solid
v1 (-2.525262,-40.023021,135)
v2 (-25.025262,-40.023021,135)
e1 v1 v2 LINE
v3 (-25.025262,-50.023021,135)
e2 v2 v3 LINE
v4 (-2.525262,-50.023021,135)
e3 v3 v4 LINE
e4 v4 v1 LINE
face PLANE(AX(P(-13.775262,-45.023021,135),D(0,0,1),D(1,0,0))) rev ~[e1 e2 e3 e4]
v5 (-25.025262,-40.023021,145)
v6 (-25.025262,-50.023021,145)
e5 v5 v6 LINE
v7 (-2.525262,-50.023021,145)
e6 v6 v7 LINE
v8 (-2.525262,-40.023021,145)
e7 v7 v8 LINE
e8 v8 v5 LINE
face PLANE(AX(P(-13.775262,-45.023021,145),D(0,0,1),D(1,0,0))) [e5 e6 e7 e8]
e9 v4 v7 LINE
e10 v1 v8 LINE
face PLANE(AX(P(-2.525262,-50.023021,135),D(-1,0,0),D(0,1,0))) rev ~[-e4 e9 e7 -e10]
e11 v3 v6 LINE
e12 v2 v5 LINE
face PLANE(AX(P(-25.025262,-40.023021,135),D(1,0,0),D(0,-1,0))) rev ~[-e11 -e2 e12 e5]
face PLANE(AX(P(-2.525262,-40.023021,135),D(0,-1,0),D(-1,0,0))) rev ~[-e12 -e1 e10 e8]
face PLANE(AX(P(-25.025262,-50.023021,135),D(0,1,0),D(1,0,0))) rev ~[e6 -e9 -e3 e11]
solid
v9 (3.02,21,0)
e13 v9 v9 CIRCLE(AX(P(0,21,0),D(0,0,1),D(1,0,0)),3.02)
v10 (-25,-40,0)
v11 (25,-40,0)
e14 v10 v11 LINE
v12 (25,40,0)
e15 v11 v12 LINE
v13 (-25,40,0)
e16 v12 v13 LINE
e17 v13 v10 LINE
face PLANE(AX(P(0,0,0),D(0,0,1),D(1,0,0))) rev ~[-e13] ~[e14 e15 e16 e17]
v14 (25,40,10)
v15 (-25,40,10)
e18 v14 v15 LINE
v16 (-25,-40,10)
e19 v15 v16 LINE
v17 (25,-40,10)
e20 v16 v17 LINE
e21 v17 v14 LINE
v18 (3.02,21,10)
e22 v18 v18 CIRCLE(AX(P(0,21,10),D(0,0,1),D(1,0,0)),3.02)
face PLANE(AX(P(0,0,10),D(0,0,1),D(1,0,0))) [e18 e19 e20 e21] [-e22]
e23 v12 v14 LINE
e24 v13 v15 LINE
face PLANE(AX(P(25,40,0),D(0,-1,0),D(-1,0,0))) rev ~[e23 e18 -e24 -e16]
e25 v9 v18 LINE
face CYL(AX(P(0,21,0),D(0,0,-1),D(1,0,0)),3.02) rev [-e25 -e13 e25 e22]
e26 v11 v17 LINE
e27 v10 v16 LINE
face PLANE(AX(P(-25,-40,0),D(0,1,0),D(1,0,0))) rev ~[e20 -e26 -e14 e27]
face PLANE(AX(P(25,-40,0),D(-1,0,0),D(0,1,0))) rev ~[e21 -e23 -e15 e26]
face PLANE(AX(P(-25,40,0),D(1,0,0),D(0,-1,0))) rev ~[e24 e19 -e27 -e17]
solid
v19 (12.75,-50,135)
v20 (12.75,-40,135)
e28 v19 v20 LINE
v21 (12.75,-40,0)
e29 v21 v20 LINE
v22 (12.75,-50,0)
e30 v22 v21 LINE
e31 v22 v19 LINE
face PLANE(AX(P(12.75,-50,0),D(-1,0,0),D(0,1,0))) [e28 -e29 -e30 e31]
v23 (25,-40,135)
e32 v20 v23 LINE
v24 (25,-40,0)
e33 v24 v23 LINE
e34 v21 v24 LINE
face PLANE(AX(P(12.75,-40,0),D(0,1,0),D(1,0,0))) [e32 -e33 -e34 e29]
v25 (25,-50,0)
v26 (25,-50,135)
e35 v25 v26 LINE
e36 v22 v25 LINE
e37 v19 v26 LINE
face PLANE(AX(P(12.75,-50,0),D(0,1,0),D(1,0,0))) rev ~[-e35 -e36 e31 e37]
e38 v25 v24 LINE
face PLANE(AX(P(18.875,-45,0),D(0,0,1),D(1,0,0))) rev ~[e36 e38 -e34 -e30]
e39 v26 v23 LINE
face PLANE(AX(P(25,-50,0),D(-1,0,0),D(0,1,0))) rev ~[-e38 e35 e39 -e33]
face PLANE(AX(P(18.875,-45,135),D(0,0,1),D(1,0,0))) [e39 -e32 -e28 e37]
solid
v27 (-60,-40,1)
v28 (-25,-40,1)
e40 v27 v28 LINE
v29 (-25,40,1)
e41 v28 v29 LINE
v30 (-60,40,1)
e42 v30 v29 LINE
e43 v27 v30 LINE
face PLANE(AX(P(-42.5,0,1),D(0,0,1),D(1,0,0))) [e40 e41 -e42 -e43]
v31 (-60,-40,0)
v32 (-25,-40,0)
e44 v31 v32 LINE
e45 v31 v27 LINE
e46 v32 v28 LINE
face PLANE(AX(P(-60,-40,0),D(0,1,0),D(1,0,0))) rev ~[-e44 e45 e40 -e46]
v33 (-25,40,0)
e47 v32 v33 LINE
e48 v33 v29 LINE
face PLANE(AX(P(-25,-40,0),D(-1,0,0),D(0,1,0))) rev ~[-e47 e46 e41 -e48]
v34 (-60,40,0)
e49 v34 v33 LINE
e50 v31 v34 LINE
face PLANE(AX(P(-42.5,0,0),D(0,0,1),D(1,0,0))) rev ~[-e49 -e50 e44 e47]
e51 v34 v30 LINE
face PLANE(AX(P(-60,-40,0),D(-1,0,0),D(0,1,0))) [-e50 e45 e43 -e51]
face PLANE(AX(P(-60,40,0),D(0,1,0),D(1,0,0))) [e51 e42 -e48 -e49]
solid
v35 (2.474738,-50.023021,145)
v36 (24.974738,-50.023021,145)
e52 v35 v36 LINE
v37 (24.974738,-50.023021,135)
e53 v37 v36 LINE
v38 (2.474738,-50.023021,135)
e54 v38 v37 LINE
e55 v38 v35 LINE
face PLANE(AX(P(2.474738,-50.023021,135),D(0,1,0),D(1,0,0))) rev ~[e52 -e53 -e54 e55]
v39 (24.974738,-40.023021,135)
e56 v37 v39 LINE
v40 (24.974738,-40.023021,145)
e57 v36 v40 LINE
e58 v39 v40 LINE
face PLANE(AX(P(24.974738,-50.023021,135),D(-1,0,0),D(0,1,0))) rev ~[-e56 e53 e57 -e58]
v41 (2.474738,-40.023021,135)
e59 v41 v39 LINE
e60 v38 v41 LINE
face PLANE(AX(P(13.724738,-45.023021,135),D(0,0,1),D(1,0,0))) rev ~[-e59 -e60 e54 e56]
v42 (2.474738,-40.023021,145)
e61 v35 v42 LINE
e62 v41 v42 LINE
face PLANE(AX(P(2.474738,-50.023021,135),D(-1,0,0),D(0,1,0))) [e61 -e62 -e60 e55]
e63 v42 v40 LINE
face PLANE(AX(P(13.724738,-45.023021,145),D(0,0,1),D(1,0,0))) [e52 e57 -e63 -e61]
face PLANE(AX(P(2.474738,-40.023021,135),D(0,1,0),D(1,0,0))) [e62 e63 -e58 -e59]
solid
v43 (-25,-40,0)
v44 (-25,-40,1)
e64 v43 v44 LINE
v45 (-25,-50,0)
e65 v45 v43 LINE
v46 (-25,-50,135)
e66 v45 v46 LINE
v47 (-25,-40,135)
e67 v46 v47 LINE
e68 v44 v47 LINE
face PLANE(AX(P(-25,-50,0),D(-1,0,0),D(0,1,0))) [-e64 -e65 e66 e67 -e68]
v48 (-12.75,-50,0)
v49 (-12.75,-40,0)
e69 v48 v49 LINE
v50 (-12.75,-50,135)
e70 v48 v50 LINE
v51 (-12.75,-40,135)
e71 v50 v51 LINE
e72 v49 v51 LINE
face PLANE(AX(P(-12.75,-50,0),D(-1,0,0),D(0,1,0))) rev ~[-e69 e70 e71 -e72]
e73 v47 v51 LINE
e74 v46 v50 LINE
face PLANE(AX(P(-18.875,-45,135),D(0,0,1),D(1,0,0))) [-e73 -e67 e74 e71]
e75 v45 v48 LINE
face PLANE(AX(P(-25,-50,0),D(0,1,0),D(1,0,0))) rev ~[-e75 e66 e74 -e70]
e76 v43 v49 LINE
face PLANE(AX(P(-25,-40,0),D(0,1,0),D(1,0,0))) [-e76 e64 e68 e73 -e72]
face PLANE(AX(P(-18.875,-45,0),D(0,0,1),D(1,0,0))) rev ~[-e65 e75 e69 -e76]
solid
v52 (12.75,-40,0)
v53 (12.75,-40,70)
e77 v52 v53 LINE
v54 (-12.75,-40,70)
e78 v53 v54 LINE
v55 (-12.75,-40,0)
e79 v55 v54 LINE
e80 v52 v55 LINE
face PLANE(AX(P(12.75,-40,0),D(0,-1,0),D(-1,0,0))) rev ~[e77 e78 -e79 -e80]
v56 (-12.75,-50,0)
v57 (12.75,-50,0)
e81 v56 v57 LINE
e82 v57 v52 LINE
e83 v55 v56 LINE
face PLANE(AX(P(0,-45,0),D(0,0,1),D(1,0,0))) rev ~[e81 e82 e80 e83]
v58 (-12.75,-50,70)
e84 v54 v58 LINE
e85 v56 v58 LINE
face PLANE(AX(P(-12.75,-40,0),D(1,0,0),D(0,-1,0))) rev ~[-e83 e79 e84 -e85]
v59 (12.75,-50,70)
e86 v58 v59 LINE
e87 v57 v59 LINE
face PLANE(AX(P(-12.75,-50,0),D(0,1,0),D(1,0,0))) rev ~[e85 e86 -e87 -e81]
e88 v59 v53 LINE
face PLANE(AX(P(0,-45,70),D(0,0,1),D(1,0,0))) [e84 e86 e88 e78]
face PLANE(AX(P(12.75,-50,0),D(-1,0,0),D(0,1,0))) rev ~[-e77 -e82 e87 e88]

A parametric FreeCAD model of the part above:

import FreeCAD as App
import Part
import Sketcher
from FreeCAD import Vector
Q = App.Units.Quantity


def add_polygon(sketch, points):
    """Adds a closed chain of lines whose ends are joined by coincident constraints."""
    first, n = sketch.GeometryCount, len(points)
    for a, b in zip(points, points[1:] + points[:1]):
        sketch.addGeometry(Part.LineSegment(App.Vector(*a, 0), App.Vector(*b, 0)), False)
    for i in range(n):
        sketch.addConstraint(Sketcher.Constraint("Coincident", first + i, 2, first + (i + 1) % n, 1))

doc = App.newDocument("Part")
body = doc.addObject("PartDesign::Body", "Body")
body.AllowCompound = True

sketch1 = body.newObject("Sketcher::SketchObject", "Sketch")
sketch1.AttachmentSupport = (doc.getObject("XY_Plane"), [""])
sketch1.MapMode = "FlatFace"
add_polygon(sketch1, [(-60, 40), (-60, -40), (-25, -40), (-25, 40)])
sketch1.addConstraint(Sketcher.Constraint("Vertical", 0))
sketch1.addConstraint(Sketcher.Constraint("Horizontal", 1))
sketch1.addConstraint(Sketcher.Constraint("Vertical", 2))
sketch1.addConstraint(Sketcher.Constraint("Horizontal", 3))
sketch1.addConstraint(Sketcher.Constraint("DistanceX", 1, 1, 1, 2, Q("35 mm")))
sketch1.addConstraint(Sketcher.Constraint("DistanceY", 0, 2, 0, 1, Q("80 mm")))
sketch1.addConstraint(Sketcher.Constraint("DistanceX", 0, 2, -1, 1, Q("60 mm")))
sketch1.addConstraint(Sketcher.Constraint("DistanceY", 0, 2, -1, 1, Q("40 mm")))
pad1 = body.newObject("PartDesign::Pad", "Pad")
pad1.Profile = sketch1
pad1.Length = 1

sketch2 = body.newObject("Sketcher::SketchObject", "Sketch001")
sketch2.AttachmentSupport = (doc.getObject("XY_Plane"), [""])
sketch2.MapMode = "FlatFace"
add_polygon(sketch2, [(-25, -40), (-25, -50), (-12.75, -50), (-12.75, -40)])
sketch2.addConstraint(Sketcher.Constraint("Vertical", 0))
sketch2.addConstraint(Sketcher.Constraint("Horizontal", 1))
sketch2.addConstraint(Sketcher.Constraint("Vertical", 2))
sketch2.addConstraint(Sketcher.Constraint("Horizontal", 3))
sketch2.addConstraint(Sketcher.Constraint("DistanceY", 0, 2, 0, 1, Q("10 mm")))
sketch2.addConstraint(Sketcher.Constraint("DistanceX", 0, 2, -1, 1, Q("25 mm")))
sketch2.addConstraint(Sketcher.Constraint("DistanceY", 0, 2, -1, 1, Q("50 mm")))
sketch2.addConstraint(Sketcher.Constraint("DistanceX", 1, 1, 1, 2, Q("12.25 mm")))
pad2 = body.newObject("PartDesign::Pad", "Pad001")
pad2.Profile = sketch2
pad2.Length = 135
body2 = doc.addObject("PartDesign::Body", "Body001")

sketch3 = body2.newObject("Sketcher::SketchObject", "Sketch002")
sketch3.AttachmentSupport = (doc.getObject("XY_Plane001"), [""])
sketch3.MapMode = "FlatFace"
add_polygon(sketch3, [(12.75, -40), (12.75, -50), (25, -50), (25, -40)])
sketch3.addConstraint(Sketcher.Constraint("Vertical", 0))
sketch3.addConstraint(Sketcher.Constraint("Horizontal", 1))
sketch3.addConstraint(Sketcher.Constraint("Vertical", 2))
sketch3.addConstraint(Sketcher.Constraint("Horizontal", 3))
sketch3.addConstraint(Sketcher.Constraint("DistanceY", 0, 2, 0, 1, Q("10 mm")))
sketch3.addConstraint(Sketcher.Constraint("DistanceY", 0, 2, -1, 1, Q("50 mm")))
sketch3.addConstraint(Sketcher.Constraint("DistanceX", -1, 1, 1, 2, Q("25 mm")))
sketch3.addConstraint(Sketcher.Constraint("DistanceX", 1, 1, 1, 2, Q("12.25 mm")))
pad3 = body2.newObject("PartDesign::Pad", "Pad002")
pad3.Profile = sketch3
pad3.Length = 135
body3 = doc.addObject("PartDesign::Body", "Body002")

sketch4 = body3.newObject("Sketcher::SketchObject", "Sketch003")
sketch4.AttachmentSupport = (doc.getObject("XY_Plane002"), [""])
sketch4.MapMode = "FlatFace"
sketch4.AttachmentOffset = App.Placement(Vector(0, 0, 135), App.Rotation())
add_polygon(sketch4, [(-2.525262, -40.023021), (-25.025262, -40.023021), (-25.025262, -50.023021), (-2.525262, -50.023021)])
sketch4.addConstraint(Sketcher.Constraint("Horizontal", 0))
sketch4.addConstraint(Sketcher.Constraint("Vertical", 1))
sketch4.addConstraint(Sketcher.Constraint("Horizontal", 2))
sketch4.addConstraint(Sketcher.Constraint("Vertical", 3))
sketch4.addConstraint(Sketcher.Constraint("DistanceY", 1, 2, 1, 1, Q("10 mm")))
sketch4.addConstraint(Sketcher.Constraint("DistanceX", 0, 2, 0, 1, Q("22.5 mm")))
sketch4.addConstraint(Sketcher.Constraint("DistanceX", 0, 2, -1, 1, Q("25.025262 mm")))
sketch4.addConstraint(Sketcher.Constraint("DistanceY", 0, 2, -1, 1, Q("40.023021 mm")))
pad4 = body3.newObject("PartDesign::Pad", "Pad003")
pad4.Profile = sketch4
pad4.Length = 10
body4 = doc.addObject("PartDesign::Body", "Body003")

sketch5 = body4.newObject("Sketcher::SketchObject", "Sketch004")
sketch5.AttachmentSupport = (doc.getObject("XY_Plane003"), [""])
sketch5.MapMode = "FlatFace"
sketch5.AttachmentOffset = App.Placement(Vector(0, 0, 135), App.Rotation())
add_polygon(sketch5, [(2.474738, -40.023021), (2.474738, -50.023021), (24.974738, -50.023021), (24.974738, -40.023021)])
sketch5.addConstraint(Sketcher.Constraint("Vertical", 0))
sketch5.addConstraint(Sketcher.Constraint("Horizontal", 1))
sketch5.addConstraint(Sketcher.Constraint("Vertical", 2))
sketch5.addConstraint(Sketcher.Constraint("Horizontal", 3))
sketch5.addConstraint(Sketcher.Constraint("DistanceY", 0, 2, 0, 1, Q("10 mm")))
sketch5.addConstraint(Sketcher.Constraint("DistanceX", 1, 1, 1, 2, Q("22.5 mm")))
sketch5.addConstraint(Sketcher.Constraint("DistanceX", -1, 1, 0, 2, Q("2.474738 mm")))
sketch5.addConstraint(Sketcher.Constraint("DistanceY", 0, 2, -1, 1, Q("50.023021 mm")))
pad5 = body4.newObject("PartDesign::Pad", "Pad004")
pad5.Profile = sketch5
pad5.Length = 10
body5 = doc.addObject("PartDesign::Body", "Body004")

sketch6 = body5.newObject("Sketcher::SketchObject", "Sketch005")
sketch6.AttachmentSupport = (doc.getObject("XY_Plane004"), [""])
sketch6.MapMode = "FlatFace"
add_polygon(sketch6, [(12.75, -40), (-12.75, -40), (-12.75, -50), (12.75, -50)])
sketch6.addConstraint(Sketcher.Constraint("Horizontal", 0))
sketch6.addConstraint(Sketcher.Constraint("Vertical", 1))
sketch6.addConstraint(Sketcher.Constraint("Horizontal", 2))
sketch6.addConstraint(Sketcher.Constraint("Vertical", 3))
sketch6.addConstraint(Sketcher.Constraint("DistanceY", 1, 2, 1, 1, Q("10 mm")))
sketch6.addConstraint(Sketcher.Constraint("DistanceX", 0, 2, 0, 1, Q("25.5 mm")))
sketch6.addConstraint(Sketcher.Constraint("DistanceY", 0, 2, -1, 1, Q("40 mm")))
sketch6.addConstraint(Sketcher.Constraint("DistanceX", 0, 2, -1, 1, Q("12.75 mm")))
pad6 = body5.newObject("PartDesign::Pad", "Pad005")
pad6.Profile = sketch6
pad6.Length = 70
body6 = doc.addObject("PartDesign::Body", "Body005")

sketch7 = body6.newObject("Sketcher::SketchObject", "Sketch006")
sketch7.AttachmentSupport = (doc.getObject("XY_Plane005"), [""])
sketch7.MapMode = "FlatFace"
add_polygon(sketch7, [(25, -40), (25, 40), (-25, 40), (-25, -40)])
sketch7.addGeometry(Part.Circle(Vector(0, 21, 0), Vector(0, 0, 1), 3.02), False)
sketch7.addConstraint(Sketcher.Constraint("Vertical", 0))
sketch7.addConstraint(Sketcher.Constraint("Horizontal", 1))
sketch7.addConstraint(Sketcher.Constraint("Vertical", 2))
sketch7.addConstraint(Sketcher.Constraint("Horizontal", 3))
sketch7.addConstraint(Sketcher.Constraint("Symmetric", 0, 2, 2, 2, -1, 1))
sketch7.addConstraint(Sketcher.Constraint("PointOnObject", 4, 3, -2))
sketch7.addConstraint(Sketcher.Constraint("Diameter", 4, Q("6.04 mm")))
sketch7.addConstraint(Sketcher.Constraint("DistanceX", 1, 2, 1, 1, Q("50 mm")))
sketch7.addConstraint(Sketcher.Constraint("DistanceY", 0, 1, 0, 2, Q("80 mm")))
sketch7.addConstraint(Sketcher.Constraint("DistanceY", -1, 1, 4, 3, Q("21 mm")))
pad7 = body6.newObject("PartDesign::Pad", "Pad006")
pad7.Profile = sketch7
pad7.Length = 10

doc.recompute()
